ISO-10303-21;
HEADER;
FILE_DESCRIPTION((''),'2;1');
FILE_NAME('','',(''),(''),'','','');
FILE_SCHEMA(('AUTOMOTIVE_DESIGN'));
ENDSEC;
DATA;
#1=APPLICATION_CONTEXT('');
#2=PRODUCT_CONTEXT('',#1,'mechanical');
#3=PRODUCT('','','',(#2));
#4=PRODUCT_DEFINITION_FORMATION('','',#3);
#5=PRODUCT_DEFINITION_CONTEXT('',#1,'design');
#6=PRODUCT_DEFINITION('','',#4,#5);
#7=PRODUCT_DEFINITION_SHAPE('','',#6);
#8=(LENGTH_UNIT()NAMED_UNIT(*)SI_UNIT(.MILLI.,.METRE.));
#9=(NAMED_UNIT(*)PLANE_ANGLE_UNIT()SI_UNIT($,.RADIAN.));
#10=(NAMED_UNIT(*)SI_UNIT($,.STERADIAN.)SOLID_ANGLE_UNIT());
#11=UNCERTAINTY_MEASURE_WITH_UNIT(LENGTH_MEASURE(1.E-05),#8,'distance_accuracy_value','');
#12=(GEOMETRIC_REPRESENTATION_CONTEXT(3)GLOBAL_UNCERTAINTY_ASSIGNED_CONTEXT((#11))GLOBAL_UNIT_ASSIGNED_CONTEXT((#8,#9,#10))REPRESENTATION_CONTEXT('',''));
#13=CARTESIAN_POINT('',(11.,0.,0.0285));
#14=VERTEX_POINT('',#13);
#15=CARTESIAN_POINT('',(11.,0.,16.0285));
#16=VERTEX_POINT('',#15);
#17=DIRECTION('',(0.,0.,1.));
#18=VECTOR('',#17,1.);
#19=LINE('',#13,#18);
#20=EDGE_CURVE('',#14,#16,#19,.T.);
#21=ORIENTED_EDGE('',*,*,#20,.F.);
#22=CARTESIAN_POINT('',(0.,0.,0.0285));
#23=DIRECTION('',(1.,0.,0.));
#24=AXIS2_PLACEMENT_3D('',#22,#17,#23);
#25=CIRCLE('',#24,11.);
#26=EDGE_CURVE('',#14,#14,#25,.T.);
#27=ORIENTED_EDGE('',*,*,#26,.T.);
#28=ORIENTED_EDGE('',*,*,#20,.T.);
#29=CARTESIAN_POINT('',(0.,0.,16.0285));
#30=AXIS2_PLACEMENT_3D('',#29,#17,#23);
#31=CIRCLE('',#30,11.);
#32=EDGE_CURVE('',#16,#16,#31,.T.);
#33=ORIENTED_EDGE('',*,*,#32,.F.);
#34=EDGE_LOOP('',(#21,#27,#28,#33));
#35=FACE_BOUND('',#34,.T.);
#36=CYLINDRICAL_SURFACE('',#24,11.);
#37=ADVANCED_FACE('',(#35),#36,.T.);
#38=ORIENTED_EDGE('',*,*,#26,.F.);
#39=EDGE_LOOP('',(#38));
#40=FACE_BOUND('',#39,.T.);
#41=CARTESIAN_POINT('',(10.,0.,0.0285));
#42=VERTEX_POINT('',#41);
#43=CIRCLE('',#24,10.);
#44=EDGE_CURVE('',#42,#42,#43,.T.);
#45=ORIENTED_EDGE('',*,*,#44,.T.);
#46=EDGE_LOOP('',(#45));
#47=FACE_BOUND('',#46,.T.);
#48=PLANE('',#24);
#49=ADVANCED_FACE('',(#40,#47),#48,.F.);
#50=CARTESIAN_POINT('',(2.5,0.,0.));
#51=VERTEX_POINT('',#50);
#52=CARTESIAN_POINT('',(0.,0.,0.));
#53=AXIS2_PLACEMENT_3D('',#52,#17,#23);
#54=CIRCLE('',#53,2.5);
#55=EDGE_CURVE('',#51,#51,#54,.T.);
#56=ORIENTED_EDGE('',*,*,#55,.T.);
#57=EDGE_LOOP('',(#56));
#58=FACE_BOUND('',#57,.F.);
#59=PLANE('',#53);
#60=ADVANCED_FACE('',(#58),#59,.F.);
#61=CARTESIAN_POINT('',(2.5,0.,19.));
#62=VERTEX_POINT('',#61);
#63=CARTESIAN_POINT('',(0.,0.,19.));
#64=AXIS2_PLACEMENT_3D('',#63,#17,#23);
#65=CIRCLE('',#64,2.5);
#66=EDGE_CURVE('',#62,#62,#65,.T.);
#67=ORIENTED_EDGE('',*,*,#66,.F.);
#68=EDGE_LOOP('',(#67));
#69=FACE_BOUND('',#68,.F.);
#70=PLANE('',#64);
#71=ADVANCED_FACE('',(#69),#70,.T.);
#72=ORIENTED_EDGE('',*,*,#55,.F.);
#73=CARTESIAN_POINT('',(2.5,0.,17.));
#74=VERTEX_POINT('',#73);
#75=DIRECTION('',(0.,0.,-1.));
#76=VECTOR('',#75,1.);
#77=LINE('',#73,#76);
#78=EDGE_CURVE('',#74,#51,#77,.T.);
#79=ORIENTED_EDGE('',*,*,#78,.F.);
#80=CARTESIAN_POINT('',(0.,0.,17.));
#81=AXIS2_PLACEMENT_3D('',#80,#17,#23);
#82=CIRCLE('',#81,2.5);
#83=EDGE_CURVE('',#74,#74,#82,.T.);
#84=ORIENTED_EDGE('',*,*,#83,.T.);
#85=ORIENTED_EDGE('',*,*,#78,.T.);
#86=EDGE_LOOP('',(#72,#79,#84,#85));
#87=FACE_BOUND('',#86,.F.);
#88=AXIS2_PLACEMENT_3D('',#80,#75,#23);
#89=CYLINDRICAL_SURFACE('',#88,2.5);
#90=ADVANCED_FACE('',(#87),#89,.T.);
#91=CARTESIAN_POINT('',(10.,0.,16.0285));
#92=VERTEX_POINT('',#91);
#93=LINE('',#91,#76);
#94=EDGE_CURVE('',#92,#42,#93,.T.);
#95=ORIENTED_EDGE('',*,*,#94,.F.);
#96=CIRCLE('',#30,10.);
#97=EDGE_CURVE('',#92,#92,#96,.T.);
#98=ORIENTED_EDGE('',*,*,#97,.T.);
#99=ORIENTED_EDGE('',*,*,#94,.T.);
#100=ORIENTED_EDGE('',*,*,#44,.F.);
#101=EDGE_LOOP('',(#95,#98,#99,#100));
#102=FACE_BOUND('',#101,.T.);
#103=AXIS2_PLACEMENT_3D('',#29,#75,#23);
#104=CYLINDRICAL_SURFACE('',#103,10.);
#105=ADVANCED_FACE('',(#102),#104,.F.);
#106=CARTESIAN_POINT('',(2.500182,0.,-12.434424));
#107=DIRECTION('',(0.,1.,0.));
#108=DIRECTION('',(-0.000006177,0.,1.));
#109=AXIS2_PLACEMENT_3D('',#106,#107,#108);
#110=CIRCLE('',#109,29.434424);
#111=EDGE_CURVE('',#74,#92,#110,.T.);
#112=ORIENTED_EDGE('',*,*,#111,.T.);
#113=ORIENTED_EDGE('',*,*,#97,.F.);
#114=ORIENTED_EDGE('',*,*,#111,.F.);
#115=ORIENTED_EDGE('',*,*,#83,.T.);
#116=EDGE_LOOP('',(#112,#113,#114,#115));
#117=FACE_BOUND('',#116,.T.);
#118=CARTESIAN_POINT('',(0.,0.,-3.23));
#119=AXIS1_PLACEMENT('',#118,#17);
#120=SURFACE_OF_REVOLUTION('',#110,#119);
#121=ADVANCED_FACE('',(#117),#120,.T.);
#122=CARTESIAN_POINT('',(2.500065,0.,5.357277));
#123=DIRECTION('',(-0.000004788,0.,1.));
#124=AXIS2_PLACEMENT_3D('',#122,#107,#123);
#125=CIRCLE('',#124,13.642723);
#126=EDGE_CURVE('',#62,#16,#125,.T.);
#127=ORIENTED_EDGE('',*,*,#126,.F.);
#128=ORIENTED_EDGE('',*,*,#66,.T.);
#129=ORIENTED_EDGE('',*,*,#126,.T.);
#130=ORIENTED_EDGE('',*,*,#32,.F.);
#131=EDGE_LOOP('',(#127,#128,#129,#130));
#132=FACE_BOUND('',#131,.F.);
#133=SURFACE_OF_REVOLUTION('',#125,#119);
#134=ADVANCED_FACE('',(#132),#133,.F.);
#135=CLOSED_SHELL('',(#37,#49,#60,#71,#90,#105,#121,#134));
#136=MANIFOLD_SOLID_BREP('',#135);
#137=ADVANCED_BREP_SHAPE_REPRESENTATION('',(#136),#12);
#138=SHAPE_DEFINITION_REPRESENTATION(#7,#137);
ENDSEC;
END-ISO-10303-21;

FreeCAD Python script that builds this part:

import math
import FreeCAD as App
import Part
import Sketcher

doc = App.newDocument("Part")
body = doc.addObject("PartDesign::Body", "Body")

sketch1 = body.newObject("Sketcher::SketchObject", "Sketch")
sketch1.AttachmentSupport = (doc.getObject("XZ_Plane"), [""])
sketch1.MapMode = "FlatFace"
sketch1.addGeometry([
    Part.LineSegment(App.Vector(0, 0, 0), App.Vector(0, 19, 0)),
    Part.LineSegment(App.Vector(0, 19, 0), App.Vector(2.5, 19, 0)),
    Part.ArcOfCircle(Part.Circle(App.Vector(2.5, 5.3573, 0), App.Vector(0, 0, 1), 13.6427), math.radians(51.4614), math.radians(90)),
    Part.LineSegment(App.Vector(11, 16.0285, 0), App.Vector(11, 0.0285, 0)),
    Part.LineSegment(App.Vector(11, 0.0285, 0), App.Vector(10, 0.0285, 0)),
    Part.LineSegment(App.Vector(10, 0.0285, 0), App.Vector(10, 16.0285, 0)),
    Part.ArcOfCircle(Part.Circle(App.Vector(2.499817, -12.437243, 0), App.Vector(0, 0, 1), 29.437243), math.radians(75.239123), math.radians(89.999643)),
    Part.LineSegment(App.Vector(2.5, 17, 0), App.Vector(2.5, 0, 0)),
    Part.LineSegment(App.Vector(2.5, 0, 0), App.Vector(0, 0, 0)),
], False)
sketch1.addConstraint([
    Sketcher.Constraint("Coincident", 0, 2, 1, 1),
    Sketcher.Constraint("Coincident", 1, 2, 2, 2),
    Sketcher.Constraint("Coincident", 2, 1, 3, 1),
    Sketcher.Constraint("Coincident", 3, 2, 4, 1),
    Sketcher.Constraint("Coincident", 4, 2, 5, 1),
    Sketcher.Constraint("Coincident", 5, 2, 6, 1),
    Sketcher.Constraint("Coincident", 6, 2, 7, 1),
    Sketcher.Constraint("Coincident", 7, 2, 8, 1),
    Sketcher.Constraint("Coincident", 8, 2, 0, 1),
    Sketcher.Constraint("Vertical", 0),
    Sketcher.Constraint("Horizontal", 1),
    Sketcher.Constraint("Vertical", 3),
    Sketcher.Constraint("Horizontal", 4),
    Sketcher.Constraint("Vertical", 5),
    Sketcher.Constraint("Vertical", 7),
    Sketcher.Constraint("Horizontal", 8),
    Sketcher.Constraint("Coincident", 8, 2, -1, 1),
    Sketcher.Constraint("DistanceX", 4, 2, 4, 1, 1.0),
    Sketcher.Constraint("DistanceY", 0, 1, 0, 2, 19.0),
    Sketcher.Constraint("DistanceY", 3, 2, 3, 1, 16.0),
    Sketcher.Constraint("DistanceY", 5, 1, 5, 2, 16.0),
    Sketcher.Constraint("DistanceY", 7, 2, 7, 1, 17.0),
    Sketcher.Constraint("DistanceX", 1, 1, 1, 2, 2.5),
    Sketcher.Constraint("DistanceX", 8, 2, 8, 1, 2.5),
    Sketcher.Constraint("DistanceX", -1, 1, 2, 1, 11.0),
    Sketcher.Constraint("DistanceX", -1, 1, 2, 3, 2.5),
    Sketcher.Constraint("DistanceX", -1, 1, 6, 3, 2.4998),
    Sketcher.Constraint("Radius", 2, 13.6427),
])
revolution = body.newObject("PartDesign::Revolution", "Revolution")
revolution.Profile = sketch1
revolution.ReferenceAxis = (sketch1, ["V_Axis"])
revolution.Angle = 360

doc.recompute()
